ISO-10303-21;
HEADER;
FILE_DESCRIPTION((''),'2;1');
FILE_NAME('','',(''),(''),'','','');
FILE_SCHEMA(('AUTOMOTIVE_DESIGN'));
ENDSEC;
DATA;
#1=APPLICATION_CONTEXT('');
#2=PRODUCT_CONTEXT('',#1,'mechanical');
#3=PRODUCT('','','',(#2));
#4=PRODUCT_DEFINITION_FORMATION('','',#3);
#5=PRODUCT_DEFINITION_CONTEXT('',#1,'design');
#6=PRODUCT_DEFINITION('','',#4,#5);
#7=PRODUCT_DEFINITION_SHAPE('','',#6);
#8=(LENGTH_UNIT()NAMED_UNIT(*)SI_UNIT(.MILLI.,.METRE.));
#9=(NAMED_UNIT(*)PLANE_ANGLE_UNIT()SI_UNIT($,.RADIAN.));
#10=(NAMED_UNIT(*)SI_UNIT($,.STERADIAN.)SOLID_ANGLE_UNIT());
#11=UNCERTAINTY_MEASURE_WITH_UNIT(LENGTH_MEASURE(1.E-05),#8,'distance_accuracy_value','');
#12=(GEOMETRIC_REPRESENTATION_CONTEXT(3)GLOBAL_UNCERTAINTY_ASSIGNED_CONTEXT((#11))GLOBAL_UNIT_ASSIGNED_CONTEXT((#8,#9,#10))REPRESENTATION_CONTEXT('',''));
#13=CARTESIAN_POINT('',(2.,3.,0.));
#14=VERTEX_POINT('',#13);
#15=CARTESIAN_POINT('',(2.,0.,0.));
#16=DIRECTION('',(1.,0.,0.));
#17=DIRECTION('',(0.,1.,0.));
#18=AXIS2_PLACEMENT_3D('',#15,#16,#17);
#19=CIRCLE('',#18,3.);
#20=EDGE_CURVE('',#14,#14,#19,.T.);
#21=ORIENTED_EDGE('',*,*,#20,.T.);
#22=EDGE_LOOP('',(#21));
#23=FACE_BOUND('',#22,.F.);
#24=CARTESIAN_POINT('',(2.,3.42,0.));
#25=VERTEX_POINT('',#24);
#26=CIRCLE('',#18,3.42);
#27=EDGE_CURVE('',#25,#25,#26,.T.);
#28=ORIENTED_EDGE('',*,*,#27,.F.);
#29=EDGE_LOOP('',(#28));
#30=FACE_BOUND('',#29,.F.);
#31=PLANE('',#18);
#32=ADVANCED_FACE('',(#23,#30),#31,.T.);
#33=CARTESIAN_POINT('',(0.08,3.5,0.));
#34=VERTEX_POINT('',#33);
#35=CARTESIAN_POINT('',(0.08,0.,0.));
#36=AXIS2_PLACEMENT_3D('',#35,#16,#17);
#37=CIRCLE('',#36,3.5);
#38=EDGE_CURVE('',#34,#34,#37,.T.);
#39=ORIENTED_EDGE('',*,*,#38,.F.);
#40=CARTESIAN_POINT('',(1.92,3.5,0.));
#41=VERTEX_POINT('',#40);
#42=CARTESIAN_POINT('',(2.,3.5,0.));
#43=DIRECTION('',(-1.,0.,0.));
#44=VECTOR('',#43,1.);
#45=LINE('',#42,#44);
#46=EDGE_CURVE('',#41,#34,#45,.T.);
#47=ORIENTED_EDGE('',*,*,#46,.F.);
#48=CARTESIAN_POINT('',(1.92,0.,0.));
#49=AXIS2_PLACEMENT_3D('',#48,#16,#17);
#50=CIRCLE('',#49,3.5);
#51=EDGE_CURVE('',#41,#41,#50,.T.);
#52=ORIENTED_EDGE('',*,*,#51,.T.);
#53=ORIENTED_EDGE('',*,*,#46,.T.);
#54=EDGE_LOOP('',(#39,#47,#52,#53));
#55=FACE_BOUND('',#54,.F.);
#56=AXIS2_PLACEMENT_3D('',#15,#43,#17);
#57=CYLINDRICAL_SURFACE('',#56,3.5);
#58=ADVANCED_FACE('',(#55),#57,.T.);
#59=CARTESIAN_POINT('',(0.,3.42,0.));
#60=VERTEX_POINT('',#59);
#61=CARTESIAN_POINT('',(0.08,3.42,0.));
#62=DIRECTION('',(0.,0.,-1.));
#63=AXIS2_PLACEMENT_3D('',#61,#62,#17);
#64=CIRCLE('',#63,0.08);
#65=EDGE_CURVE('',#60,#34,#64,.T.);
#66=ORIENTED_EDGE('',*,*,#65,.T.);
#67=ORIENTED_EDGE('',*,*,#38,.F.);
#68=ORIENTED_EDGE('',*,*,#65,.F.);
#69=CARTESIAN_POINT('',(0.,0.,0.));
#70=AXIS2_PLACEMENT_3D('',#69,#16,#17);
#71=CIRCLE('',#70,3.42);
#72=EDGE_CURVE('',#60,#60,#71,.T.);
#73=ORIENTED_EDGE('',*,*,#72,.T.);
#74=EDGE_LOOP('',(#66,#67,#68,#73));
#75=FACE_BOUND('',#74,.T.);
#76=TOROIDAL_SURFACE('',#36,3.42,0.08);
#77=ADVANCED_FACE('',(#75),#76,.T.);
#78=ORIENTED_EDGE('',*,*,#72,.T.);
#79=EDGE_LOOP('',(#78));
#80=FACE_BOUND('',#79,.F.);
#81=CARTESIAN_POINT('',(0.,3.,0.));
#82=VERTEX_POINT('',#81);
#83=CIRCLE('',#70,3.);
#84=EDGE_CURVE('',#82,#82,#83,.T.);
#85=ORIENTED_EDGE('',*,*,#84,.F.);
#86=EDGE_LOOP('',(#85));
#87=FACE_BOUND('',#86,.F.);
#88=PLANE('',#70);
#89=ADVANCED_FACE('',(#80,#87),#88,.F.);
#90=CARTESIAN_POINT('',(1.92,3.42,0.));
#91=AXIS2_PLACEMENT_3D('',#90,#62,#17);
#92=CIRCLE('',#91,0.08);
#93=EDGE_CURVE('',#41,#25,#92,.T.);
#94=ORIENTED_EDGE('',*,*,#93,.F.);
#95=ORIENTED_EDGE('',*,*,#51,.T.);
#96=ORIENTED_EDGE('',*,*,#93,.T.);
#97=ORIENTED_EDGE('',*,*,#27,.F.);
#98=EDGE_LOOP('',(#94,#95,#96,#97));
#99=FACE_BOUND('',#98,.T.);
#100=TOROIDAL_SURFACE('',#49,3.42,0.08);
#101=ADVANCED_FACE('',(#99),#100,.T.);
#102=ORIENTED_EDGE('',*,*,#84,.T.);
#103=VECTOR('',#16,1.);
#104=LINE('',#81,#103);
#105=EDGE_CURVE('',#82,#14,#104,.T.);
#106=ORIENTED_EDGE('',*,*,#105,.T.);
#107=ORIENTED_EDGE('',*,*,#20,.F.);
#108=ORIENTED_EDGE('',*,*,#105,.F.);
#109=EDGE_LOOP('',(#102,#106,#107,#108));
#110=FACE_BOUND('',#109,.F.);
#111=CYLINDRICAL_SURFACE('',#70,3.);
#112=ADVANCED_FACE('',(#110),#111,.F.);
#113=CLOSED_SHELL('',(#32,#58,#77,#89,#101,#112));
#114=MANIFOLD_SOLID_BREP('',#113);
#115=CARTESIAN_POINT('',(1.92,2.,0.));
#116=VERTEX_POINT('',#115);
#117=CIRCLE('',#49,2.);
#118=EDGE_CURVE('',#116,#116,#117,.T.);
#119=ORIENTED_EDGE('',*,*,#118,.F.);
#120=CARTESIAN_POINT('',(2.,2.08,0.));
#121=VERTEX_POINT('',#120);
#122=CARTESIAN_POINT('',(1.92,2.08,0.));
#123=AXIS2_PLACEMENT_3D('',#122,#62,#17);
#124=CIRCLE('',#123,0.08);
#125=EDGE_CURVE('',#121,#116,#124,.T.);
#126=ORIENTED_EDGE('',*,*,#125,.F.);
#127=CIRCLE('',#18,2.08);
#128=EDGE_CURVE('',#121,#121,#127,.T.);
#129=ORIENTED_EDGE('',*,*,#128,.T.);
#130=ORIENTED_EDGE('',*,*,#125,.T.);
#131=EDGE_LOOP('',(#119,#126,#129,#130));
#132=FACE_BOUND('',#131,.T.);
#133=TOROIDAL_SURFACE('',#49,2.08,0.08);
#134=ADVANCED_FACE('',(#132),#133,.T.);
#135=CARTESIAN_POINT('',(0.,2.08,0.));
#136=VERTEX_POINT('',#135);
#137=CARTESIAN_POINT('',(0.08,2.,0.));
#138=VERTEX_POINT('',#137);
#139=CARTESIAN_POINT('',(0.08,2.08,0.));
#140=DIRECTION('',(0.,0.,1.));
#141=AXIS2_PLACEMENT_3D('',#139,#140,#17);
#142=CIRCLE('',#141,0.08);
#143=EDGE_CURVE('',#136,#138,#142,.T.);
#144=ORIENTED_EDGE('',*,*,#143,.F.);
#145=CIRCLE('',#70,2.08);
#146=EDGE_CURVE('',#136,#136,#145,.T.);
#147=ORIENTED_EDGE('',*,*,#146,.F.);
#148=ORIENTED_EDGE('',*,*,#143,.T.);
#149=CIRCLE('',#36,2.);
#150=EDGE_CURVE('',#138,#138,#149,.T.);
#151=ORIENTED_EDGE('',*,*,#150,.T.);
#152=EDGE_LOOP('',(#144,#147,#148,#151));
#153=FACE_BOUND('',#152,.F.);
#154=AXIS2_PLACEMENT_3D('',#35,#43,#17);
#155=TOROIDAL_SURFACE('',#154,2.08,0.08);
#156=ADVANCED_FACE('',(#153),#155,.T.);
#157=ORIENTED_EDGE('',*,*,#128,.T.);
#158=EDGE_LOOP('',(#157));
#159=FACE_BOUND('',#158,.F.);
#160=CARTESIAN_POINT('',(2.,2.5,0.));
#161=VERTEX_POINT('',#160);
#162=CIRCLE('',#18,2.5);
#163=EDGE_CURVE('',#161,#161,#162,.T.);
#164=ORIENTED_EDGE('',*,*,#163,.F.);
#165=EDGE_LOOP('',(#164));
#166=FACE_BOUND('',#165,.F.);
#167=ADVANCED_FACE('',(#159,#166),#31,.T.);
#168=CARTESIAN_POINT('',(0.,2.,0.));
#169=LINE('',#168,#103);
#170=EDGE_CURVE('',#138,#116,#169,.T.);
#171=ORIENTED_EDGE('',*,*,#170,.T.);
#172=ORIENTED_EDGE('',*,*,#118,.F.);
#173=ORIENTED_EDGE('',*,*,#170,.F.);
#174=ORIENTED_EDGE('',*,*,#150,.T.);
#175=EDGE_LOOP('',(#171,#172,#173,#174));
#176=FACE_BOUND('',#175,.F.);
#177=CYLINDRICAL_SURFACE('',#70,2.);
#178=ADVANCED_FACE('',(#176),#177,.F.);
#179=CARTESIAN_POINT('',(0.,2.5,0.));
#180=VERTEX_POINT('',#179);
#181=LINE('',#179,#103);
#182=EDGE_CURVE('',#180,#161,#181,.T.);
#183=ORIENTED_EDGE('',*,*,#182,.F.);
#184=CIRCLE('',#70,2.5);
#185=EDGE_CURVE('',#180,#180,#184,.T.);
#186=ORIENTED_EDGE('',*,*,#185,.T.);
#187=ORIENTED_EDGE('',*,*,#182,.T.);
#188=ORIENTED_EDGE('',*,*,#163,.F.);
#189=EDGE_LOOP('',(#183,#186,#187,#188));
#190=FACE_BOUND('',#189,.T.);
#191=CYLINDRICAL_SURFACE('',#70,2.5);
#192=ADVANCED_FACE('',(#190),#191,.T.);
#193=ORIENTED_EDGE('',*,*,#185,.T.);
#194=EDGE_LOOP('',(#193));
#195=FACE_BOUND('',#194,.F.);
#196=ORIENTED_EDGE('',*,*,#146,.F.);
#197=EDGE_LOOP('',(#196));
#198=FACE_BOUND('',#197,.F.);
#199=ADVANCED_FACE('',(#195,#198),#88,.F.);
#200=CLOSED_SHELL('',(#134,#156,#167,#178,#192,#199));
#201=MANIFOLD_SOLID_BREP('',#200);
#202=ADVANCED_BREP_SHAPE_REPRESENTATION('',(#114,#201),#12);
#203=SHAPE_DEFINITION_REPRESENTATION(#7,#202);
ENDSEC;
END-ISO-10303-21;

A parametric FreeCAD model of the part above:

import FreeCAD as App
import Part
import Sketcher

V = App.Vector
Q = App.Units.Quantity


def edges_at(feature, points):
    """Names of the edges that pass closest to the given points."""
    edges = feature.Shape.Edges
    near = lambda p: min(range(len(edges)), key=lambda i: edges[i].distToShape(Part.Vertex(*p))[0])
    return sorted({f"Edge{near(p) + 1}" for p in points})

doc = App.newDocument("Part")
body = doc.addObject("PartDesign::Body", "Body")
body.AllowCompound = True

# Sketch on XY plane
sketch1 = body.newObject("Sketcher::SketchObject", "Sketch")
sketch1.AttachmentSupport = (doc.getObject("XY_Plane"), [""])
sketch1.MapMode = "FlatFace"
sketch1.addGeometry(Part.LineSegment(V(0, 2.5, 0), V(0, 2, 0)), False)
sketch1.addGeometry(Part.LineSegment(V(0, 2, 0), V(2, 2, 0)), False)
sketch1.addGeometry(Part.LineSegment(V(2, 2, 0), V(2, 2.5, 0)), False)
sketch1.addGeometry(Part.LineSegment(V(2, 2.5, 0), V(0, 2.5, 0)), False)
sketch1.addGeometry(Part.LineSegment(V(0, 3.5, 0), V(0, 3, 0)), False)
sketch1.addGeometry(Part.LineSegment(V(0, 3, 0), V(2, 3, 0)), False)
sketch1.addGeometry(Part.LineSegment(V(2, 3, 0), V(2, 3.5, 0)), False)
sketch1.addGeometry(Part.LineSegment(V(2, 3.5, 0), V(0, 3.5, 0)), False)
sketch1.addConstraint(Sketcher.Constraint("Coincident", 0, 2, 1, 1))
sketch1.addConstraint(Sketcher.Constraint("Coincident", 1, 2, 2, 1))
sketch1.addConstraint(Sketcher.Constraint("Coincident", 2, 2, 3, 1))
sketch1.addConstraint(Sketcher.Constraint("Coincident", 3, 2, 0, 1))
sketch1.addConstraint(Sketcher.Constraint("Coincident", 4, 2, 5, 1))
sketch1.addConstraint(Sketcher.Constraint("Coincident", 5, 2, 6, 1))
sketch1.addConstraint(Sketcher.Constraint("Coincident", 6, 2, 7, 1))
sketch1.addConstraint(Sketcher.Constraint("Coincident", 7, 2, 4, 1))
sketch1.addConstraint(Sketcher.Constraint("Vertical", 0))
sketch1.addConstraint(Sketcher.Constraint("Horizontal", 1))
sketch1.addConstraint(Sketcher.Constraint("Vertical", 2))
sketch1.addConstraint(Sketcher.Constraint("Horizontal", 3))
sketch1.addConstraint(Sketcher.Constraint("Vertical", 4))
sketch1.addConstraint(Sketcher.Constraint("Horizontal", 5))
sketch1.addConstraint(Sketcher.Constraint("Vertical", 6))
sketch1.addConstraint(Sketcher.Constraint("Horizontal", 7))
sketch1.addConstraint(Sketcher.Constraint("PointOnObject", 0, 2, -2))
sketch1.addConstraint(Sketcher.Constraint("PointOnObject", 4, 2, -2))
sketch1.addConstraint(Sketcher.Constraint("Vertical", 2, 2, 5, 2))
sketch1.addConstraint(Sketcher.Constraint("Equal", 2, 4))
sketch1.addConstraint(Sketcher.Constraint("DistanceX", 1, 1, 1, 2, Q("2 mm")))
sketch1.addConstraint(Sketcher.Constraint("DistanceY", -1, 1, 0, 2, Q("2 mm")))
sketch1.addConstraint(Sketcher.Constraint("DistanceY", 0, 2, 0, 1, Q("0.5 mm")))
sketch1.addConstraint(Sketcher.Constraint("DistanceY", -1, 1, 4, 2, Q("3 mm")))
revolution = body.newObject("PartDesign::Revolution", "Revolution")
revolution.Profile = sketch1
revolution.ReferenceAxis = (sketch1, ["H_Axis"])
revolution.Angle = 360
doc.recompute()

fillet = body.newObject("PartDesign::Fillet", "Fillet")
fillet.Base = (revolution, edges_at(revolution, [
    (0, -3.5, 0),
    (2, -3.5, 0),
    (0, -2, 0),
    (2, -2, 0),
]))
fillet.Radius = 0.08

doc.recompute()
